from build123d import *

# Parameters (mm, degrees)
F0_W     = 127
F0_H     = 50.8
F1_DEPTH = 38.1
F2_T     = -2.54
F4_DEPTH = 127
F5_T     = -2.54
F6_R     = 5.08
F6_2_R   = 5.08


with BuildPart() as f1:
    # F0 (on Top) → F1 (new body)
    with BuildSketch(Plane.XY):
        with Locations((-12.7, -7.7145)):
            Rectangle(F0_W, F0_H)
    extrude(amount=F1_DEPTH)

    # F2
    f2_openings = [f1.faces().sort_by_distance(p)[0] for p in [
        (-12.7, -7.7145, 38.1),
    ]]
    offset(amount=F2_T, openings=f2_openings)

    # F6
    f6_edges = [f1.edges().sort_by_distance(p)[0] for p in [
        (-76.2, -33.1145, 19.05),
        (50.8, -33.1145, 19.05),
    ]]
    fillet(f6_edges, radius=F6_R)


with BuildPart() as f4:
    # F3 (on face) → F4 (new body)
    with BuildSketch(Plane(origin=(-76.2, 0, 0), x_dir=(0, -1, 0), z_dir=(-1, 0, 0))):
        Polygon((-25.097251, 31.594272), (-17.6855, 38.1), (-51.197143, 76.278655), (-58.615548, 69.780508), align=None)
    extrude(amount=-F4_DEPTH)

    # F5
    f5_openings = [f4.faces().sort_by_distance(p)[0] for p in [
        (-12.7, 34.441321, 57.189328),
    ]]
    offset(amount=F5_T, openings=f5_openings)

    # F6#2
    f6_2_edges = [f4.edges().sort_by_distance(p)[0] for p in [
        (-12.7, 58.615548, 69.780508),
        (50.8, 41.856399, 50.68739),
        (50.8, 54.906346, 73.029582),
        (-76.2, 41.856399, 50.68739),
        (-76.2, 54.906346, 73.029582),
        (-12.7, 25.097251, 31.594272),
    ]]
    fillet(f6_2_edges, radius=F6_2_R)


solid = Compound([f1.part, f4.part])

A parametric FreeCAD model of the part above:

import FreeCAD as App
import Part
import Sketcher
from FreeCAD import Vector
Q = App.Units.Quantity


def edges_at(feature, points):
    """Names of the edges that pass closest to the given points."""
    edges = feature.Shape.Edges
    near = lambda p: min(range(len(edges)), key=lambda i: edges[i].distToShape(Part.Vertex(*p))[0])
    return sorted({f"Edge{near(p) + 1}" for p in points})


def faces_at(feature, points):
    """Names of the faces that lie closest to the given points."""
    faces = feature.Shape.Faces
    near = lambda p: min(range(len(faces)), key=lambda i: faces[i].distToShape(Part.Vertex(*p))[0])
    return sorted({f"Face{near(p) + 1}" for p in points})

doc = App.newDocument("Part")
body = doc.addObject("PartDesign::Body", "Body")

sketch1 = body.newObject("Sketcher::SketchObject", "Sketch")
sketch1.AttachmentSupport = (doc.getObject("XY_Plane"), [""])
sketch1.MapMode = "FlatFace"
sketch1.addGeometry(Part.LineSegment(Vector(-76.2, 17.6855, 0), Vector(-76.2, -33.1145, 0)), False)
sketch1.addGeometry(Part.LineSegment(Vector(-76.2, -33.1145, 0), Vector(50.8, -33.1145, 0)), False)
sketch1.addGeometry(Part.LineSegment(Vector(50.8, -33.1145, 0), Vector(50.8, 17.6855, 0)), False)
sketch1.addGeometry(Part.LineSegment(Vector(50.8, 17.6855, 0), Vector(-76.2, 17.6855, 0)), False)
sketch1.addConstraint(Sketcher.Constraint("Coincident", 0, 2, 1, 1))
sketch1.addConstraint(Sketcher.Constraint("Coincident", 1, 2, 2, 1))
sketch1.addConstraint(Sketcher.Constraint("Coincident", 2, 2, 3, 1))
sketch1.addConstraint(Sketcher.Constraint("Coincident", 3, 2, 0, 1))
sketch1.addConstraint(Sketcher.Constraint("Vertical", 0))
sketch1.addConstraint(Sketcher.Constraint("Horizontal", 1))
sketch1.addConstraint(Sketcher.Constraint("Vertical", 2))
sketch1.addConstraint(Sketcher.Constraint("Horizontal", 3))
sketch1.addConstraint(Sketcher.Constraint("DistanceX", 1, 1, 1, 2, Q("5 in")))
sketch1.addConstraint(Sketcher.Constraint("DistanceY", 0, 2, 0, 1, Q("2 in")))
sketch1.addConstraint(Sketcher.Constraint("DistanceX", 0, 2, -1, 1, Q("3 in")))
sketch1.addConstraint(Sketcher.Constraint("DistanceY", 0, 2, -1, 1, Q("33.1145 mm")))
pad1 = body.newObject("PartDesign::Pad", "Pad")
pad1.Profile = sketch1
pad1.Length = Q("1.5 in")
doc.recompute()

thickness = body.newObject("PartDesign::Thickness", "Thickness")
thickness.Base = (pad1, faces_at(pad1, [(-12.7, -7.715, 38.1)]))
thickness.Value = Q("0.1 in")
thickness.Reversed = True
thickness.Join = "Arc"
doc.recompute()

fillet = body.newObject("PartDesign::Fillet", "Fillet")
fillet.Base = (thickness, edges_at(thickness, [(-76.2, -33.114, 19.05), (50.8, -33.114, 19.05)]))
fillet.Radius = Q("0.2 in")
body2 = doc.addObject("PartDesign::Body", "Body001")

sketch2 = body2.newObject("Sketcher::SketchObject", "Sketch001")
sketch2.AttachmentSupport = (doc.getObject("YZ_Plane001"), [""])
sketch2.MapMode = "FlatFace"
sketch2.AttachmentOffset = App.Placement(Vector(0, 0, -3 * 25.4), App.Rotation())
sketch2.addGeometry(Part.LineSegment(Vector(25.097251, 31.594272, 0), Vector(17.6855, 38.1, 0)), False)
sketch2.addGeometry(Part.LineSegment(Vector(17.6855, 38.1, 0), Vector(51.197143, 76.278655, 0)), False)
sketch2.addGeometry(Part.LineSegment(Vector(51.197143, 76.278655, 0), Vector(58.615548, 69.780508, 0)), False)
sketch2.addGeometry(Part.LineSegment(Vector(58.615548, 69.780508, 0), Vector(25.097251, 31.594272, 0)), False)
sketch2.addConstraint(Sketcher.Constraint("Coincident", 0, 2, 1, 1))
sketch2.addConstraint(Sketcher.Constraint("Coincident", 1, 2, 2, 1))
sketch2.addConstraint(Sketcher.Constraint("Coincident", 2, 2, 3, 1))
sketch2.addConstraint(Sketcher.Constraint("Coincident", 3, 2, 0, 1))
sketch2.addConstraint(Sketcher.Constraint("Distance", 1, Q("2 in")))
sketch2.addConstraint(Sketcher.Constraint("DistanceY", -1, 1, 0, 2, Q("1.5 in")))
sketch2.addConstraint(Sketcher.Constraint("DistanceX", -1, 1, 0, 2, Q("17.6855 mm")))
sketch2.addConstraint(Sketcher.Constraint("Distance", 2, Q("9.86198 mm")))
sketch2.addConstraint(Sketcher.Constraint("DistanceX", -1, 1, 3, 2, Q("25.097251 mm")))
sketch2.addConstraint(Sketcher.Constraint("DistanceY", -1, 1, 3, 2, Q("31.594272 mm")))
sketch2.addConstraint(Sketcher.Constraint("DistanceX", 3, 2, 1, 2, Q("26.099892 mm")))
sketch2.addConstraint(Sketcher.Constraint("Distance", 3, Q("50.810086 mm")))
pad2 = body2.newObject("PartDesign::Pad", "Pad001")
pad2.Profile = sketch2
pad2.Length = Q("5 in")
doc.recompute()

thickness2 = body2.newObject("PartDesign::Thickness", "Thickness001")
thickness2.Base = (pad2, faces_at(pad2, [(-12.7, 34.441, 57.189)]))
thickness2.Value = Q("0.1 in")
thickness2.Reversed = True
thickness2.Join = "Arc"
doc.recompute()

fillet2 = body2.newObject("PartDesign::Fillet", "Fillet001")
fillet2.Base = (thickness2, edges_at(thickness2, [
    (-12.7, 58.616, 69.781),
    (50.8, 41.856, 50.687),
    (50.8, 54.906, 73.03),
    (-76.2, 41.856, 50.687),
    (-76.2, 54.906, 73.03),
    (-12.7, 25.097, 31.594),
]))
fillet2.Radius = Q("0.2 in")

doc.recompute()
